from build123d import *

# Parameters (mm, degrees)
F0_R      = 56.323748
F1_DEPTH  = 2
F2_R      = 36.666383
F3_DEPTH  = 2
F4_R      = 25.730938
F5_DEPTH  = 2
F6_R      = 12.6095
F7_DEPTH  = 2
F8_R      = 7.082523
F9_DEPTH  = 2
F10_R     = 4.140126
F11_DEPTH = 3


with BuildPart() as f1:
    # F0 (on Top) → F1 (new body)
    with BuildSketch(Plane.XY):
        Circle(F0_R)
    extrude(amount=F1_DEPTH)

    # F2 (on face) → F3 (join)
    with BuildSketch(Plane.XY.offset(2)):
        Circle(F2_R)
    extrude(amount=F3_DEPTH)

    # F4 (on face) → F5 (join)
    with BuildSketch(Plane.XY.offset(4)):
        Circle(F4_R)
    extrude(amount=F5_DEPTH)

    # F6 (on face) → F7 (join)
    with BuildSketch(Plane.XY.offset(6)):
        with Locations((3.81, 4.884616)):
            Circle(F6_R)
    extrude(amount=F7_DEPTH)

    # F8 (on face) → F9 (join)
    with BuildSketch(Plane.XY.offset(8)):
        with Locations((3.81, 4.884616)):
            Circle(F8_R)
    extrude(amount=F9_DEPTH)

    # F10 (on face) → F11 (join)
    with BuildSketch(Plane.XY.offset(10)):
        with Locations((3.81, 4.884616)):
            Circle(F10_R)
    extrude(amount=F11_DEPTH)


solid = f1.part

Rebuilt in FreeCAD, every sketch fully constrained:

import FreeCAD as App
import Part
import Sketcher

V = App.Vector

doc = App.newDocument("Part")
body = doc.addObject("PartDesign::Body", "Body")

sketch1 = doc.addObject("Sketcher::SketchObject", "Sketch")
body.addObject(sketch1)
sketch1.AttachmentSupport = (doc.XY_Plane, [""])
sketch1.MapMode = "FlatFace"
sketch1.addGeometry(Part.Circle(V(0, 0, 0), V(0, 0, 1), 56), False)
sketch1.addConstraint(Sketcher.Constraint("Coincident", 0, 3, -1, 1))
sketch1.addConstraint(Sketcher.Constraint("Diameter", 0, 112.647496))
pad1 = doc.addObject("PartDesign::Pad", "Pad")
body.addObject(pad1)
pad1.Profile = sketch1
pad1.Length = 2

sketch2 = doc.addObject("Sketcher::SketchObject", "Sketch001")
body.addObject(sketch2)
sketch2.AttachmentSupport = (doc.XY_Plane, [""])
sketch2.MapMode = "FlatFace"
sketch2.AttachmentOffset = App.Placement(V(0, 0, 2), App.Rotation())
sketch2.addGeometry(Part.Circle(V(0, 0, 0), V(0, 0, 1), 37), False)
sketch2.addConstraint(Sketcher.Constraint("Coincident", 0, 3, -1, 1))
sketch2.addConstraint(Sketcher.Constraint("Diameter", 0, 73.332766))
pad2 = doc.addObject("PartDesign::Pad", "Pad001")
body.addObject(pad2)
pad2.Profile = sketch2
pad2.Length = 2

sketch3 = doc.addObject("Sketcher::SketchObject", "Sketch002")
body.addObject(sketch3)
sketch3.AttachmentSupport = (doc.XY_Plane, [""])
sketch3.MapMode = "FlatFace"
sketch3.AttachmentOffset = App.Placement(V(0, 0, 4), App.Rotation())
sketch3.addGeometry(Part.Circle(V(0, 0, 0), V(0, 0, 1), 26), False)
sketch3.addConstraint(Sketcher.Constraint("Coincident", 0, 3, -1, 1))
sketch3.addConstraint(Sketcher.Constraint("Diameter", 0, 51.461876))
pad3 = doc.addObject("PartDesign::Pad", "Pad002")
body.addObject(pad3)
pad3.Profile = sketch3
pad3.Length = 2

sketch4 = doc.addObject("Sketcher::SketchObject", "Sketch003")
body.addObject(sketch4)
sketch4.AttachmentSupport = (doc.XY_Plane, [""])
sketch4.MapMode = "FlatFace"
sketch4.AttachmentOffset = App.Placement(V(0, 0, 6), App.Rotation())
sketch4.addGeometry(Part.Circle(V(4, 5, 0), V(0, 0, 1), 13), False)
sketch4.addConstraint(Sketcher.Constraint("Diameter", 0, 25.219))
sketch4.addConstraint(Sketcher.Constraint("DistanceX", -1, 1, 0, 3, 3.81))
sketch4.addConstraint(Sketcher.Constraint("DistanceY", -1, 1, 0, 3, 4.884616))
pad4 = doc.addObject("PartDesign::Pad", "Pad003")
body.addObject(pad4)
pad4.Profile = sketch4
pad4.Length = 2

sketch5 = doc.addObject("Sketcher::SketchObject", "Sketch004")
body.addObject(sketch5)
sketch5.AttachmentSupport = (doc.XY_Plane, [""])
sketch5.MapMode = "FlatFace"
sketch5.AttachmentOffset = App.Placement(V(0, 0, 8), App.Rotation())
sketch5.addGeometry(Part.Circle(V(4, 5, 0), V(0, 0, 1), 7), False)
sketch5.addConstraint(Sketcher.Constraint("DistanceX", -1, 1, 0, 3, 3.81))
sketch5.addConstraint(Sketcher.Constraint("Diameter", 0, 14.165046))
sketch5.addConstraint(Sketcher.Constraint("DistanceY", -1, 1, 0, 3, 4.884616))
pad5 = doc.addObject("PartDesign::Pad", "Pad004")
body.addObject(pad5)
pad5.Profile = sketch5
pad5.Length = 2

sketch6 = doc.addObject("Sketcher::SketchObject", "Sketch005")
body.addObject(sketch6)
sketch6.AttachmentSupport = (doc.XY_Plane, [""])
sketch6.MapMode = "FlatFace"
sketch6.AttachmentOffset = App.Placement(V(0, 0, 10), App.Rotation())
sketch6.addGeometry(Part.Circle(V(3.8, 4.9, 0), V(0, 0, 1), 4.1), False)
sketch6.addConstraint(Sketcher.Constraint("DistanceX", -1, 1, 0, 3, 3.81))
sketch6.addConstraint(Sketcher.Constraint("Diameter", 0, 8.280252))
sketch6.addConstraint(Sketcher.Constraint("DistanceY", -1, 1, 0, 3, 4.884616))
pad6 = doc.addObject("PartDesign::Pad", "Pad005")
body.addObject(pad6)
pad6.Profile = sketch6
pad6.Length = 3

doc.recompute()
